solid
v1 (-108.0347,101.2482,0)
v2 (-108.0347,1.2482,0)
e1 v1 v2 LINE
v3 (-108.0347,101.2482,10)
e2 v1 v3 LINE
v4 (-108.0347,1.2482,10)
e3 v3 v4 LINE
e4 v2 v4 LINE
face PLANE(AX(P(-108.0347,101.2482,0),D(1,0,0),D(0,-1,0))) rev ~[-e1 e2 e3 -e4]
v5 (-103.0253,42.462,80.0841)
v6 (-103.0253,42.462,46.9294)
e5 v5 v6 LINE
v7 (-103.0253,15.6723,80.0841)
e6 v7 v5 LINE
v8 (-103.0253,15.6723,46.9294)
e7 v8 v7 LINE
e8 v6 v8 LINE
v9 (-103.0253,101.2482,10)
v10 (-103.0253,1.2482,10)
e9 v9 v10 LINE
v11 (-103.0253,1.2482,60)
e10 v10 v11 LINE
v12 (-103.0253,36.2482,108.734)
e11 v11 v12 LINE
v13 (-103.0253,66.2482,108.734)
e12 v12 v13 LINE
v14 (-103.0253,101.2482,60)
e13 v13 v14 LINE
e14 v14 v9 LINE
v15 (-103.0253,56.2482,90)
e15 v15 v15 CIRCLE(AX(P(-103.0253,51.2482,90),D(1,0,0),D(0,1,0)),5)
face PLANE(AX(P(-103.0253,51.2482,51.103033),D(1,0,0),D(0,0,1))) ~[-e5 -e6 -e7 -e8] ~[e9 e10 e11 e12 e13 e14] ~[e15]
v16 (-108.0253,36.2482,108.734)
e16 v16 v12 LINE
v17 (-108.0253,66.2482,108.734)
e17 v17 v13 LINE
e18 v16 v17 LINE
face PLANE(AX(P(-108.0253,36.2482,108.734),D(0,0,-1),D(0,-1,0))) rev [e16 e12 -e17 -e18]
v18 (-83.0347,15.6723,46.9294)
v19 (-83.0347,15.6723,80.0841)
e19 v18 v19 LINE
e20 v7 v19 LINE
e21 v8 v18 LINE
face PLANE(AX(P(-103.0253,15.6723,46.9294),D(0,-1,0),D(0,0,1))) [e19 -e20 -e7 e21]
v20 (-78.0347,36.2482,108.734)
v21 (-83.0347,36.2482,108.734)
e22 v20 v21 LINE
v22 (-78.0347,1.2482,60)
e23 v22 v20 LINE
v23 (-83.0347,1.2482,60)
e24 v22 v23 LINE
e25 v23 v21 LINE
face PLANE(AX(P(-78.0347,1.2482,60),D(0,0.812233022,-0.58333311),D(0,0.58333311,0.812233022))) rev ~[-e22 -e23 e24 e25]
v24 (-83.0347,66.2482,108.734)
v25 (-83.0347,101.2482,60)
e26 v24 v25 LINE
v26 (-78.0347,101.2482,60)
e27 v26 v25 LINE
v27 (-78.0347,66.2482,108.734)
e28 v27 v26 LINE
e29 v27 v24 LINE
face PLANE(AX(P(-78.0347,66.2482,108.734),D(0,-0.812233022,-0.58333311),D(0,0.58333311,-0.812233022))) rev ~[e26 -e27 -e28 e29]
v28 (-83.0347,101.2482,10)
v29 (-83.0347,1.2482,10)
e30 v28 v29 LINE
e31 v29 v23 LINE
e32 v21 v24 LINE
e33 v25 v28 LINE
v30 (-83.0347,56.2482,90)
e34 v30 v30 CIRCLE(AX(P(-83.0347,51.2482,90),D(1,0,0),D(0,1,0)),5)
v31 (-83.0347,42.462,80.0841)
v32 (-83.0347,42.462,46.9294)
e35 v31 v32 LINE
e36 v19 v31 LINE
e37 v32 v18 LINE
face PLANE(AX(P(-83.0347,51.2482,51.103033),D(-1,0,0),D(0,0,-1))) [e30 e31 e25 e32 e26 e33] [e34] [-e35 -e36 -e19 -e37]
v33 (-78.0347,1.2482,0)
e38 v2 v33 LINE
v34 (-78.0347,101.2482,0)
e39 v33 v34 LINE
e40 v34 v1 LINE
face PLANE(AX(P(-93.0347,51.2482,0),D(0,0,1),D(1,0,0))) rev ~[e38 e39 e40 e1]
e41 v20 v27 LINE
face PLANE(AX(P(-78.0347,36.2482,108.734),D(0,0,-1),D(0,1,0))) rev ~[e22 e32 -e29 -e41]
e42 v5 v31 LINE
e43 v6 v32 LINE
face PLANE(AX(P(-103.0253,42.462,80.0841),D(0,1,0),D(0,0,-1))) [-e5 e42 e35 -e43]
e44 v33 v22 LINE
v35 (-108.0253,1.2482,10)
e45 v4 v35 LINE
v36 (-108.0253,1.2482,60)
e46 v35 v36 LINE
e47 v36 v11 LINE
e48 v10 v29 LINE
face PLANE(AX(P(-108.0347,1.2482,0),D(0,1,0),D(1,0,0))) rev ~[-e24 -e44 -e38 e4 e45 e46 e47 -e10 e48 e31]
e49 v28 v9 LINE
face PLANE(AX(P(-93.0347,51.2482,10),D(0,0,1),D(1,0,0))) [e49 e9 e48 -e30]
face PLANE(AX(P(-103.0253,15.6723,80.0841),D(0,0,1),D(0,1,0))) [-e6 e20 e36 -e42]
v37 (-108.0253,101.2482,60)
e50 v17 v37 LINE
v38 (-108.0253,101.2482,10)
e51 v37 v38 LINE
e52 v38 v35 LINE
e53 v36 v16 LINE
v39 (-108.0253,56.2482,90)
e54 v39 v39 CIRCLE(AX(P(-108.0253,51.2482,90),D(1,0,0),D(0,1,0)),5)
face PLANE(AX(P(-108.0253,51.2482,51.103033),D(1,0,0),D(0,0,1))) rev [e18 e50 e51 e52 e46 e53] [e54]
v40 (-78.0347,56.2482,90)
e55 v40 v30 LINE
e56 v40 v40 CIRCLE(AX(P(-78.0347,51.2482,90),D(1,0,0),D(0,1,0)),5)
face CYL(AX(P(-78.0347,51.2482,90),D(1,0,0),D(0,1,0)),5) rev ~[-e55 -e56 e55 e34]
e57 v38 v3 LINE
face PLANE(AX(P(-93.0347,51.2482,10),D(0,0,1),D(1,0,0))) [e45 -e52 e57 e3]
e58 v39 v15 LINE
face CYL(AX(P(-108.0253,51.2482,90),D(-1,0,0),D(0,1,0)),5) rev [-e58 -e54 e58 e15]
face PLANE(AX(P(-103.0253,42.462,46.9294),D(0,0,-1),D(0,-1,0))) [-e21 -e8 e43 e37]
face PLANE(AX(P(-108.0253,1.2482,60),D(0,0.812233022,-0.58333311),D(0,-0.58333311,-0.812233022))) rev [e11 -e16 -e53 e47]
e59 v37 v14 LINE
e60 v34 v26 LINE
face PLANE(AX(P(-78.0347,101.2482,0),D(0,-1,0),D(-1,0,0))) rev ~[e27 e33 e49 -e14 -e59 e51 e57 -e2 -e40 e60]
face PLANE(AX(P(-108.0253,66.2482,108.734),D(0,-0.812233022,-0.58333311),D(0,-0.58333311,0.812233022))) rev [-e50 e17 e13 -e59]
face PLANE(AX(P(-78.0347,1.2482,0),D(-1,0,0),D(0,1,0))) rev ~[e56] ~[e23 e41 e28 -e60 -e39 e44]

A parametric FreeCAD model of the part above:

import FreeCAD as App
import Part
import Sketcher
from FreeCAD import Vector
Q = App.Units.Quantity

doc = App.newDocument("Part")
params = doc.addObject("Spreadsheet::Sheet", "Params")
for row, (alias, value) in enumerate([
    ("sketch1_width", "30 mm"),
    ("sketch1_height", "100 mm"),
    ("pad1_length", "10 mm"),
    ("sketch2_height", "50 mm"),
    ("sketch2_diameter", "10 mm"),
    ("sketch2_length", "60 mm"),
    ("pad2_length", "5 mm"),
    ("pad3_length", "19.9907 mm"),
], start=1):
    params.set(f"A{row}", alias)
    params.set(f"B{row}", "=" + value)
    params.setAlias(f"B{row}", alias)

body = doc.addObject("PartDesign::Body", "Body")

# Sketch on XY plane
sketch1 = body.newObject("Sketcher::SketchObject", "Sketch")
sketch1.AttachmentSupport = (doc.getObject("XY_Plane"), [""])
sketch1.MapMode = "FlatFace"
sketch1.addGeometry([
    Part.LineSegment(Vector(-108, 101, 0), Vector(-108, 1, 0)),
    Part.LineSegment(Vector(-108, 1, 0), Vector(-78, 1, 0)),
    Part.LineSegment(Vector(-78, 1, 0), Vector(-78, 101, 0)),
    Part.LineSegment(Vector(-78, 101, 0), Vector(-108, 101, 0)),
], False)
sketch1.addConstraint([
    Sketcher.Constraint("Coincident", 0, 2, 1, 1),
    Sketcher.Constraint("Coincident", 1, 2, 2, 1),
    Sketcher.Constraint("Coincident", 2, 2, 3, 1),
    Sketcher.Constraint("Coincident", 3, 2, 0, 1),
    Sketcher.Constraint("Vertical", 0),
    Sketcher.Constraint("Horizontal", 1),
    Sketcher.Constraint("Vertical", 2),
    Sketcher.Constraint("Horizontal", 3),
    Sketcher.Constraint("DistanceX", 1, 1, 1, 2, Q("30 mm")),
    Sketcher.Constraint("DistanceY", 0, 2, 0, 1, Q("100 mm")),
    Sketcher.Constraint("DistanceX", 0, 2, -1, 1, Q("108.0347 mm")),
    Sketcher.Constraint("DistanceY", -1, 1, 0, 2, Q("1.2482 mm")),
])
sketch1.setExpression("Constraints[8]", "Params.sketch1_width")
sketch1.setExpression("Constraints[9]", "Params.sketch1_height")
pad1 = body.newObject("PartDesign::Pad", "Pad")
pad1.Profile = sketch1
pad1.setExpression("Length", "Params.pad1_length")

# Sketch on YZ plane
sketch2 = body.newObject("Sketcher::SketchObject", "Sketch001")
sketch2.AttachmentSupport = (doc.getObject("YZ_Plane"), [""])
sketch2.MapMode = "FlatFace"
sketch2.AttachmentOffset = App.Placement(Vector(0, 0, -78.0347), App.Rotation())
sketch2.addGeometry([
    Part.LineSegment(Vector(1, 60, 0), Vector(1, 10, 0)),  # 0
    Part.LineSegment(Vector(1, 10, 0), Vector(101, 10, 0)),  # 1
    Part.LineSegment(Vector(101, 10, 0), Vector(101, 60, 0)),  # 2
    Part.LineSegment(Vector(101, 60, 0), Vector(66, 109, 0)),  # 3
    Part.LineSegment(Vector(66, 109, 0), Vector(36, 109, 0)),  # 4
    Part.LineSegment(Vector(36, 109, 0), Vector(1, 60, 0)),  # 5
    Part.Circle(Vector(51, 90, 0), Vector(0, 0, 1), 5),  # 6
], False)
sketch2.addConstraint([
    Sketcher.Constraint("Coincident", 0, 2, 1, 1),
    Sketcher.Constraint("Coincident", 1, 2, 2, 1),
    Sketcher.Constraint("Coincident", 2, 2, 3, 1),
    Sketcher.Constraint("Coincident", 3, 2, 4, 1),
    Sketcher.Constraint("Coincident", 4, 2, 5, 1),
    Sketcher.Constraint("Coincident", 5, 2, 0, 1),
    Sketcher.Constraint("Vertical", 0),
    Sketcher.Constraint("Horizontal", 1),
    Sketcher.Constraint("Vertical", 2),
    Sketcher.Constraint("Horizontal", 4),
    Sketcher.Constraint("Horizontal", 2, 2, 5, 2),
    Sketcher.Constraint("Equal", 3, 5),
    Sketcher.Constraint("DistanceY", 0, 2, 0, 1, Q("50 mm")),
    Sketcher.Constraint("Diameter", 6, Q("10 mm")),
    Sketcher.Constraint("DistanceX", 0, 2, 6, 3, Q("50 mm")),
    Sketcher.Constraint("DistanceX", 6, 3, 1, 2, Q("50 mm")),
    Sketcher.Constraint("DistanceX", 6, 3, 3, 2, Q("15 mm")),
    Sketcher.Constraint("Distance", 3, Q("60 mm")),
    Sketcher.Constraint("DistanceY", -1, 1, 6, 3, Q("90 mm")),
    Sketcher.Constraint("DistanceY", -1, 1, 0, 2, Q("10 mm")),
    Sketcher.Constraint("DistanceX", -1, 1, 6, 3, Q("51.2482 mm")),
])
sketch2.setExpression("Constraints[12]", "Params.sketch2_height")
sketch2.setExpression("Constraints[13]", "Params.sketch2_diameter")
sketch2.setExpression("Constraints[17]", "Params.sketch2_length")
pad2 = body.newObject("PartDesign::Pad", "Pad001")
pad2.Profile = sketch2
pad2.setExpression("Length", "Params.pad2_length")
pad2.Reversed = True
doc.recompute()

datumplane = body.newObject("PartDesign::Plane", "DatumPlane")
datumplane.AttachmentSupport = (doc.getObject("YZ_Plane"), [""])
datumplane.MapMode = "FlatFace"
datumplane.AttachmentOffset = App.Placement(Vector(0, 0, -93.03), App.Rotation())
mirrored = body.newObject("PartDesign::Mirrored", "Mirrored")
mirrored.Originals = [pad2]
mirrored.MirrorPlane = (datumplane, [""])
body.Tip = mirrored

# Sketch on YZ plane
sketch3 = body.newObject("Sketcher::SketchObject", "Sketch002")
sketch3.AttachmentSupport = (doc.getObject("YZ_Plane"), [""])
sketch3.MapMode = "FlatFace"
sketch3.AttachmentOffset = App.Placement(Vector(0, 0, -103.0253), App.Rotation())
sketch3.addGeometry([
    Part.LineSegment(Vector(42, 80, 0), Vector(16, 80, 0)),
    Part.LineSegment(Vector(16, 80, 0), Vector(16, 47, 0)),
    Part.LineSegment(Vector(16, 47, 0), Vector(42, 47, 0)),
    Part.LineSegment(Vector(42, 47, 0), Vector(42, 80, 0)),
], False)
sketch3.addConstraint([
    Sketcher.Constraint("Coincident", 0, 2, 1, 1),
    Sketcher.Constraint("Coincident", 1, 2, 2, 1),
    Sketcher.Constraint("Coincident", 2, 2, 3, 1),
    Sketcher.Constraint("Coincident", 3, 2, 0, 1),
    Sketcher.Constraint("Horizontal", 0),
    Sketcher.Constraint("Vertical", 1),
    Sketcher.Constraint("Horizontal", 2),
    Sketcher.Constraint("Vertical", 3),
    Sketcher.Constraint("DistanceX", 0, 2, 0, 1, Q("26.7897 mm")),
    Sketcher.Constraint("DistanceY", 1, 2, 1, 1, Q("33.1547 mm")),
    Sketcher.Constraint("DistanceY", -1, 1, 0, 2, Q("80.084 mm")),
    Sketcher.Constraint("DistanceX", -1, 1, 2, 2, Q("42.462 mm")),
])
pad3 = body.newObject("PartDesign::Pad", "Pad002")
pad3.Profile = sketch3
pad3.setExpression("Length", "Params.pad3_length")

doc.recompute()
